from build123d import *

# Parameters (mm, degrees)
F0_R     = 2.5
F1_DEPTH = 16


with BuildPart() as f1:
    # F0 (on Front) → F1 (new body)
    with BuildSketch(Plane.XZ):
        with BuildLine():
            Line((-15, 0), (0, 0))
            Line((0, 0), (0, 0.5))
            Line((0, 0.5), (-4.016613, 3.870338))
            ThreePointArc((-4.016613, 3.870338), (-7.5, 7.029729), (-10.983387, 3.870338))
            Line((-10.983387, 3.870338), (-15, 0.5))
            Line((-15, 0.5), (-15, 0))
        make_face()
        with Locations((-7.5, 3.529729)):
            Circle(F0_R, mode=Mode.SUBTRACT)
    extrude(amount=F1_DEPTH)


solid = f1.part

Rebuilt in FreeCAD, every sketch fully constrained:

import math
import FreeCAD as App
import Part
import Sketcher
Q = App.Units.Quantity

doc = App.newDocument("Part")
body = doc.addObject("PartDesign::Body", "Body")

# Sketch on XZ plane
sketch1 = body.newObject("Sketcher::SketchObject", "Sketch")
sketch1.AttachmentSupport = (doc.getObject("XZ_Plane"), [""])
sketch1.MapMode = "FlatFace"
sketch1.addGeometry(Part.LineSegment(App.Vector(-15, 0, 0), App.Vector(0, 0, 0)), False)
sketch1.addGeometry(Part.LineSegment(App.Vector(0, 0, 0), App.Vector(0, 0.5, 0)), False)
sketch1.addGeometry(Part.LineSegment(App.Vector(0, 0.5, 0), App.Vector(-4.016613, 3.870338, 0)), False)
sketch1.addGeometry(Part.ArcOfCircle(Part.Circle(App.Vector(-7.5, 3.529729, 0), App.Vector(0, 0, 1), 3.5), math.radians(5.584683), math.radians(174.415317)), False)
sketch1.addGeometry(Part.LineSegment(App.Vector(-10.983387, 3.870338, 0), App.Vector(-15, 0.5, 0)), False)
sketch1.addGeometry(Part.LineSegment(App.Vector(-15, 0.5, 0), App.Vector(-15, 0, 0)), False)
sketch1.addGeometry(Part.Circle(App.Vector(-7.5, 3.529729, 0), App.Vector(0, 0, 1), 2.5), False)
sketch1.addConstraint(Sketcher.Constraint("Coincident", 0, 2, 1, 1))
sketch1.addConstraint(Sketcher.Constraint("Coincident", 1, 2, 2, 1))
sketch1.addConstraint(Sketcher.Constraint("Coincident", 2, 2, 3, 1))
sketch1.addConstraint(Sketcher.Constraint("Coincident", 3, 2, 4, 1))
sketch1.addConstraint(Sketcher.Constraint("Coincident", 4, 2, 5, 1))
sketch1.addConstraint(Sketcher.Constraint("Coincident", 5, 2, 0, 1))
sketch1.addConstraint(Sketcher.Constraint("Horizontal", 0))
sketch1.addConstraint(Sketcher.Constraint("Vertical", 1))
sketch1.addConstraint(Sketcher.Constraint("Vertical", 5))
sketch1.addConstraint(Sketcher.Constraint("Coincident", 0, 2, -1, 1))
sketch1.addConstraint(Sketcher.Constraint("Coincident", 6, 3, 3, 3))
sketch1.addConstraint(Sketcher.Constraint("Horizontal", 2, 2, 3, 2))
sketch1.addConstraint(Sketcher.Constraint("Horizontal", 1, 2, 4, 2))
sketch1.addConstraint(Sketcher.Constraint("Equal", 2, 4))
sketch1.addConstraint(Sketcher.Constraint("Diameter", 6, Q("5 mm")))
sketch1.addConstraint(Sketcher.Constraint("Radius", 3, Q("3.5 mm")))
sketch1.addConstraint(Sketcher.Constraint("DistanceX", 0, 1, 0, 2, Q("15 mm")))
sketch1.addConstraint(Sketcher.Constraint("Angle", 2, Q("140.000004 deg")))
sketch1.addConstraint(Sketcher.Constraint("DistanceY", 1, 1, 1, 2, Q("0.5 mm")))
sketch1.addConstraint(Sketcher.Constraint("DistanceY", -1, 1, 3, 3, Q("3.529729 mm")))
pad1 = body.newObject("PartDesign::Pad", "Pad")
pad1.Profile = sketch1
pad1.Length = 16

doc.recompute()
